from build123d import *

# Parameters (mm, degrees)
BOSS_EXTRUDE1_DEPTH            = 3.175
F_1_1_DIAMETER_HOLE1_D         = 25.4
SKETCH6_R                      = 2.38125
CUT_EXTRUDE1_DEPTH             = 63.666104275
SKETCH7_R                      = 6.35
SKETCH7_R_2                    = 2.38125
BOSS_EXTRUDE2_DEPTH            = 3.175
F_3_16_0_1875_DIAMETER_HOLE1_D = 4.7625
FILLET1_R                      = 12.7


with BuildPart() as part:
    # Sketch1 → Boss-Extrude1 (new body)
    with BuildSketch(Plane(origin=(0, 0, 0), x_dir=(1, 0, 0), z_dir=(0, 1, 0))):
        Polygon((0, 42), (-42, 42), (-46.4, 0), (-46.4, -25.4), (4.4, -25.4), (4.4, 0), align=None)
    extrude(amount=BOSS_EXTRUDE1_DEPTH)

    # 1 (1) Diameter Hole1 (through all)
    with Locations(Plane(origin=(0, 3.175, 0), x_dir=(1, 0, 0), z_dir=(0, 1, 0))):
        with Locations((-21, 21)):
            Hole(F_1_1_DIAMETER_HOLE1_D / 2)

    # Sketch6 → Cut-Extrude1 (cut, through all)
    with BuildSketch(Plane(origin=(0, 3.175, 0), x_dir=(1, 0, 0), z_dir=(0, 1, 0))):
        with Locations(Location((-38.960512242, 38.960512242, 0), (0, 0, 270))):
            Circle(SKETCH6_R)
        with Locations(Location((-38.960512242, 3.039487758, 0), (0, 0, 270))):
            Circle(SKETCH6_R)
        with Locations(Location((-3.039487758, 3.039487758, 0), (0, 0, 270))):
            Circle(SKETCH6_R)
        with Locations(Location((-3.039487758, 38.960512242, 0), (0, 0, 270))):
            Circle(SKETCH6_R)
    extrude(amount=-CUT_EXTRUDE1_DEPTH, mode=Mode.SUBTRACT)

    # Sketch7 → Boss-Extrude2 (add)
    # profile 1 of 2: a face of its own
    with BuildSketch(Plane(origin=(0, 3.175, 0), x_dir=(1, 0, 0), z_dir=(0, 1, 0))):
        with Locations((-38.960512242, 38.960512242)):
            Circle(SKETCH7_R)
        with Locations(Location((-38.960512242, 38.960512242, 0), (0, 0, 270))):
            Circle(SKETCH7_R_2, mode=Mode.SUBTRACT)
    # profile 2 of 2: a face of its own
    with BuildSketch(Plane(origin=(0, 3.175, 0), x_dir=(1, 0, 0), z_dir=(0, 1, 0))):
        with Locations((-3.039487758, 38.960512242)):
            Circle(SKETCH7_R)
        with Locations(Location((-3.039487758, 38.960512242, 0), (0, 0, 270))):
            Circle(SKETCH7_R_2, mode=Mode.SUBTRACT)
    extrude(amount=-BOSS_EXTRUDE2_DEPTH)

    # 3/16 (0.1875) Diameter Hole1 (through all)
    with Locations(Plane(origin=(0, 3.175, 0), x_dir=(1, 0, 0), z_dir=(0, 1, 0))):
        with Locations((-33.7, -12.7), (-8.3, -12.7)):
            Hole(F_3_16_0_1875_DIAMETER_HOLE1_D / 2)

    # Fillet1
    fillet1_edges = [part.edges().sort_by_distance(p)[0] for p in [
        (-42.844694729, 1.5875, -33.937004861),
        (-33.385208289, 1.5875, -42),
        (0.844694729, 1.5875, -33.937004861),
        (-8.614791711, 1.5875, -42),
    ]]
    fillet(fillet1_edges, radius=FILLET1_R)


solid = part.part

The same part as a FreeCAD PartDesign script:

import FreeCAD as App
import Part
import Sketcher
Q = App.Units.Quantity


def edges_at(feature, points):
    """Names of the edges that pass closest to the given points."""
    edges = feature.Shape.Edges
    near = lambda p: min(range(len(edges)), key=lambda i: edges[i].distToShape(Part.Vertex(*p))[0])
    return sorted({f"Edge{near(p) + 1}" for p in points})


def add_polygon(sketch, points):
    """Adds a closed chain of lines whose ends are joined by coincident constraints."""
    first, n = sketch.GeometryCount, len(points)
    for a, b in zip(points, points[1:] + points[:1]):
        sketch.addGeometry(Part.LineSegment(App.Vector(*a, 0), App.Vector(*b, 0)), False)
    for i in range(n):
        sketch.addConstraint(Sketcher.Constraint("Coincident", first + i, 2, first + (i + 1) % n, 1))

doc = App.newDocument("Part")
body = doc.addObject("PartDesign::Body", "Body")

sketch1 = body.newObject("Sketcher::SketchObject", "Sketch")
sketch1.AttachmentSupport = (doc.getObject("XZ_Plane"), [""])
sketch1.MapMode = "FlatFace"
add_polygon(sketch1, [(0, -42), (-42, -42), (-46, 0), (-46, 25), (4, 25), (4, 0)])
sketch1.addConstraint(Sketcher.Constraint("Horizontal", 0))
sketch1.addConstraint(Sketcher.Constraint("Vertical", 2))
sketch1.addConstraint(Sketcher.Constraint("Horizontal", 3))
sketch1.addConstraint(Sketcher.Constraint("Vertical", 4))
sketch1.addConstraint(Sketcher.Constraint("PointOnObject", 1, 2, -1))
sketch1.addConstraint(Sketcher.Constraint("PointOnObject", 4, 2, -1))
sketch1.addConstraint(Sketcher.Constraint("PointOnObject", 5, 2, -2))
sketch1.addConstraint(Sketcher.Constraint("Equal", 1, 5))
sketch1.addConstraint(Sketcher.Constraint("DistanceX", 3, 1, 3, 2, Q("2 in")))
sketch1.addConstraint(Sketcher.Constraint("DistanceY", 2, 1, 2, 2, Q("1 in")))
sketch1.addConstraint(Sketcher.Constraint("DistanceX", 0, 2, 0, 1, Q("42 mm")))
sketch1.addConstraint(Sketcher.Constraint("DistanceY", 0, 2, -1, 1, Q("42 mm")))
pad1 = body.newObject("PartDesign::Pad", "Pad")
pad1.Profile = sketch1
pad1.Length = Q("0.125 in")
pad1.Reversed = True

sketch2 = body.newObject("Sketcher::SketchObject", "Sketch001")
sketch2.AttachmentSupport = (doc.getObject("XZ_Plane"), [""])
sketch2.MapMode = "FlatFace"
sketch2.AttachmentOffset = App.Placement(App.Vector(0, 0, -0.125 * 25.4), App.Rotation())
sketch2.addGeometry(Part.Circle(App.Vector(-21, -21, 0), App.Vector(0, 0, 1), 13), False)
sketch2.addConstraint(Sketcher.Constraint("Diameter", 0, Q("1 in")))
sketch2.addConstraint(Sketcher.Constraint("DistanceX", 0, 3, -1, 1, Q("21 mm")))
sketch2.addConstraint(Sketcher.Constraint("DistanceY", 0, 3, -1, 1, Q("21 mm")))
doc.recompute()
hole = body.newObject("PartDesign::Hole", "Hole")
hole.Profile = sketch2
hole.ThreadType = "None"
hole.Diameter = Q("1 in")
hole.DepthType = "ThroughAll"
hole.Reversed = True

sketch3 = body.newObject("Sketcher::SketchObject", "Sketch002")
sketch3.AttachmentSupport = (doc.getObject("XZ_Plane"), [""])
sketch3.MapMode = "FlatFace"
sketch3.AttachmentOffset = App.Placement(App.Vector(0, 0, -0.125 * 25.4), App.Rotation())
sketch3.addGeometry(Part.Circle(App.Vector(-39, -39, 0), App.Vector(0, 0, 1), 2.4), False)
sketch3.addGeometry(Part.Circle(App.Vector(-39, -3, 0), App.Vector(0, 0, 1), 2.4), False)
sketch3.addGeometry(Part.Circle(App.Vector(-3, -3, 0), App.Vector(0, 0, 1), 2.4), False)
sketch3.addGeometry(Part.Circle(App.Vector(-3, -39, 0), App.Vector(0, 0, 1), 2.4), False)
sketch3.addConstraint(Sketcher.Constraint("Equal", 0, 1))
sketch3.addConstraint(Sketcher.Constraint("Equal", 1, 2))
sketch3.addConstraint(Sketcher.Constraint("Equal", 2, 3))
sketch3.addConstraint(Sketcher.Constraint("Horizontal", 1, 3, 2, 3))
sketch3.addConstraint(Sketcher.Constraint("Horizontal", 0, 3, 3, 3))
sketch3.addConstraint(Sketcher.Constraint("Vertical", 0, 3, 1, 3))
sketch3.addConstraint(Sketcher.Constraint("Vertical", 2, 3, 3, 3))
sketch3.addConstraint(Sketcher.Constraint("Diameter", 0, Q("0.1875 in")))
sketch3.addConstraint(Sketcher.Constraint("DistanceX", 0, 3, -1, 1, Q("38.960512 mm")))
sketch3.addConstraint(Sketcher.Constraint("DistanceY", 0, 3, -1, 1, Q("38.960512 mm")))
sketch3.addConstraint(Sketcher.Constraint("DistanceY", 1, 3, -1, 1, Q("3.039488 mm")))
sketch3.addConstraint(Sketcher.Constraint("DistanceX", 2, 3, -1, 1, Q("3.039488 mm")))
pocket1 = body.newObject("PartDesign::Pocket", "Pocket")
pocket1.Profile = sketch3
pocket1.Type = "ThroughAll"
pocket1.Reversed = True

sketch4 = body.newObject("Sketcher::SketchObject", "Sketch003")
sketch4.AttachmentSupport = (doc.getObject("XZ_Plane"), [""])
sketch4.MapMode = "FlatFace"
sketch4.AttachmentOffset = App.Placement(App.Vector(0, 0, -0.125 * 25.4), App.Rotation())
sketch4.addGeometry(Part.Circle(App.Vector(-39, -39, 0), App.Vector(0, 0, 1), 6.3), False)
sketch4.addGeometry(Part.Circle(App.Vector(-39, -39, 0), App.Vector(0, 0, 1), 2.4), False)
sketch4.addGeometry(Part.Circle(App.Vector(-3, -39, 0), App.Vector(0, 0, 1), 6.3), False)
sketch4.addGeometry(Part.Circle(App.Vector(-3, -39, 0), App.Vector(0, 0, 1), 2.4), False)
sketch4.addConstraint(Sketcher.Constraint("Coincident", 1, 3, 0, 3))
sketch4.addConstraint(Sketcher.Constraint("Coincident", 3, 3, 2, 3))
sketch4.addConstraint(Sketcher.Constraint("Equal", 0, 2))
sketch4.addConstraint(Sketcher.Constraint("Equal", 1, 3))
sketch4.addConstraint(Sketcher.Constraint("Horizontal", 1, 3, 2, 3))
sketch4.addConstraint(Sketcher.Constraint("Diameter", 0, Q("0.5 in")))
sketch4.addConstraint(Sketcher.Constraint("Diameter", 1, Q("0.1875 in")))
sketch4.addConstraint(Sketcher.Constraint("DistanceX", 0, 3, -1, 1, Q("38.960512 mm")))
sketch4.addConstraint(Sketcher.Constraint("DistanceY", 0, 3, -1, 1, Q("38.960512 mm")))
sketch4.addConstraint(Sketcher.Constraint("DistanceX", 2, 3, -1, 1, Q("3.039488 mm")))
pad2 = body.newObject("PartDesign::Pad", "Pad001")
pad2.Profile = sketch4
pad2.Length = Q("0.125 in")

sketch5 = body.newObject("Sketcher::SketchObject", "Sketch004")
sketch5.AttachmentSupport = (doc.getObject("XZ_Plane"), [""])
sketch5.MapMode = "FlatFace"
sketch5.AttachmentOffset = App.Placement(App.Vector(0, 0, -0.125 * 25.4), App.Rotation())
sketch5.addGeometry(Part.Circle(App.Vector(-33.7, 12.7, 0), App.Vector(0, 0, 1), 2.4), False)
sketch5.addGeometry(Part.Circle(App.Vector(-8.3, 12.7, 0), App.Vector(0, 0, 1), 2.4), False)
sketch5.addConstraint(Sketcher.Constraint("Equal", 0, 1))
sketch5.addConstraint(Sketcher.Constraint("Horizontal", 0, 3, 1, 3))
sketch5.addConstraint(Sketcher.Constraint("Diameter", 0, Q("0.1875 in")))
sketch5.addConstraint(Sketcher.Constraint("DistanceX", 0, 3, 1, 3, Q("1 in")))
sketch5.addConstraint(Sketcher.Constraint("DistanceY", -1, 1, 0, 3, Q("0.5 in")))
sketch5.addConstraint(Sketcher.Constraint("DistanceX", 0, 3, -1, 1, Q("33.7 mm")))
doc.recompute()
hole2 = body.newObject("PartDesign::Hole", "Hole001")
hole2.Profile = sketch5
hole2.ThreadType = "None"
hole2.Diameter = Q("0.1875 in")
hole2.DepthType = "ThroughAll"
hole2.Reversed = True
doc.recompute()

fillet = body.newObject("PartDesign::Fillet", "Fillet")
fillet.Base = (hole2, edges_at(hole2, [
    (-42.845, 1.587, -33.937),
    (-33.385, 1.587, -42),
    (0.845, 1.587, -33.937),
    (-8.615, 1.587, -42),
]))
fillet.Radius = Q("0.5 in")

doc.recompute()
